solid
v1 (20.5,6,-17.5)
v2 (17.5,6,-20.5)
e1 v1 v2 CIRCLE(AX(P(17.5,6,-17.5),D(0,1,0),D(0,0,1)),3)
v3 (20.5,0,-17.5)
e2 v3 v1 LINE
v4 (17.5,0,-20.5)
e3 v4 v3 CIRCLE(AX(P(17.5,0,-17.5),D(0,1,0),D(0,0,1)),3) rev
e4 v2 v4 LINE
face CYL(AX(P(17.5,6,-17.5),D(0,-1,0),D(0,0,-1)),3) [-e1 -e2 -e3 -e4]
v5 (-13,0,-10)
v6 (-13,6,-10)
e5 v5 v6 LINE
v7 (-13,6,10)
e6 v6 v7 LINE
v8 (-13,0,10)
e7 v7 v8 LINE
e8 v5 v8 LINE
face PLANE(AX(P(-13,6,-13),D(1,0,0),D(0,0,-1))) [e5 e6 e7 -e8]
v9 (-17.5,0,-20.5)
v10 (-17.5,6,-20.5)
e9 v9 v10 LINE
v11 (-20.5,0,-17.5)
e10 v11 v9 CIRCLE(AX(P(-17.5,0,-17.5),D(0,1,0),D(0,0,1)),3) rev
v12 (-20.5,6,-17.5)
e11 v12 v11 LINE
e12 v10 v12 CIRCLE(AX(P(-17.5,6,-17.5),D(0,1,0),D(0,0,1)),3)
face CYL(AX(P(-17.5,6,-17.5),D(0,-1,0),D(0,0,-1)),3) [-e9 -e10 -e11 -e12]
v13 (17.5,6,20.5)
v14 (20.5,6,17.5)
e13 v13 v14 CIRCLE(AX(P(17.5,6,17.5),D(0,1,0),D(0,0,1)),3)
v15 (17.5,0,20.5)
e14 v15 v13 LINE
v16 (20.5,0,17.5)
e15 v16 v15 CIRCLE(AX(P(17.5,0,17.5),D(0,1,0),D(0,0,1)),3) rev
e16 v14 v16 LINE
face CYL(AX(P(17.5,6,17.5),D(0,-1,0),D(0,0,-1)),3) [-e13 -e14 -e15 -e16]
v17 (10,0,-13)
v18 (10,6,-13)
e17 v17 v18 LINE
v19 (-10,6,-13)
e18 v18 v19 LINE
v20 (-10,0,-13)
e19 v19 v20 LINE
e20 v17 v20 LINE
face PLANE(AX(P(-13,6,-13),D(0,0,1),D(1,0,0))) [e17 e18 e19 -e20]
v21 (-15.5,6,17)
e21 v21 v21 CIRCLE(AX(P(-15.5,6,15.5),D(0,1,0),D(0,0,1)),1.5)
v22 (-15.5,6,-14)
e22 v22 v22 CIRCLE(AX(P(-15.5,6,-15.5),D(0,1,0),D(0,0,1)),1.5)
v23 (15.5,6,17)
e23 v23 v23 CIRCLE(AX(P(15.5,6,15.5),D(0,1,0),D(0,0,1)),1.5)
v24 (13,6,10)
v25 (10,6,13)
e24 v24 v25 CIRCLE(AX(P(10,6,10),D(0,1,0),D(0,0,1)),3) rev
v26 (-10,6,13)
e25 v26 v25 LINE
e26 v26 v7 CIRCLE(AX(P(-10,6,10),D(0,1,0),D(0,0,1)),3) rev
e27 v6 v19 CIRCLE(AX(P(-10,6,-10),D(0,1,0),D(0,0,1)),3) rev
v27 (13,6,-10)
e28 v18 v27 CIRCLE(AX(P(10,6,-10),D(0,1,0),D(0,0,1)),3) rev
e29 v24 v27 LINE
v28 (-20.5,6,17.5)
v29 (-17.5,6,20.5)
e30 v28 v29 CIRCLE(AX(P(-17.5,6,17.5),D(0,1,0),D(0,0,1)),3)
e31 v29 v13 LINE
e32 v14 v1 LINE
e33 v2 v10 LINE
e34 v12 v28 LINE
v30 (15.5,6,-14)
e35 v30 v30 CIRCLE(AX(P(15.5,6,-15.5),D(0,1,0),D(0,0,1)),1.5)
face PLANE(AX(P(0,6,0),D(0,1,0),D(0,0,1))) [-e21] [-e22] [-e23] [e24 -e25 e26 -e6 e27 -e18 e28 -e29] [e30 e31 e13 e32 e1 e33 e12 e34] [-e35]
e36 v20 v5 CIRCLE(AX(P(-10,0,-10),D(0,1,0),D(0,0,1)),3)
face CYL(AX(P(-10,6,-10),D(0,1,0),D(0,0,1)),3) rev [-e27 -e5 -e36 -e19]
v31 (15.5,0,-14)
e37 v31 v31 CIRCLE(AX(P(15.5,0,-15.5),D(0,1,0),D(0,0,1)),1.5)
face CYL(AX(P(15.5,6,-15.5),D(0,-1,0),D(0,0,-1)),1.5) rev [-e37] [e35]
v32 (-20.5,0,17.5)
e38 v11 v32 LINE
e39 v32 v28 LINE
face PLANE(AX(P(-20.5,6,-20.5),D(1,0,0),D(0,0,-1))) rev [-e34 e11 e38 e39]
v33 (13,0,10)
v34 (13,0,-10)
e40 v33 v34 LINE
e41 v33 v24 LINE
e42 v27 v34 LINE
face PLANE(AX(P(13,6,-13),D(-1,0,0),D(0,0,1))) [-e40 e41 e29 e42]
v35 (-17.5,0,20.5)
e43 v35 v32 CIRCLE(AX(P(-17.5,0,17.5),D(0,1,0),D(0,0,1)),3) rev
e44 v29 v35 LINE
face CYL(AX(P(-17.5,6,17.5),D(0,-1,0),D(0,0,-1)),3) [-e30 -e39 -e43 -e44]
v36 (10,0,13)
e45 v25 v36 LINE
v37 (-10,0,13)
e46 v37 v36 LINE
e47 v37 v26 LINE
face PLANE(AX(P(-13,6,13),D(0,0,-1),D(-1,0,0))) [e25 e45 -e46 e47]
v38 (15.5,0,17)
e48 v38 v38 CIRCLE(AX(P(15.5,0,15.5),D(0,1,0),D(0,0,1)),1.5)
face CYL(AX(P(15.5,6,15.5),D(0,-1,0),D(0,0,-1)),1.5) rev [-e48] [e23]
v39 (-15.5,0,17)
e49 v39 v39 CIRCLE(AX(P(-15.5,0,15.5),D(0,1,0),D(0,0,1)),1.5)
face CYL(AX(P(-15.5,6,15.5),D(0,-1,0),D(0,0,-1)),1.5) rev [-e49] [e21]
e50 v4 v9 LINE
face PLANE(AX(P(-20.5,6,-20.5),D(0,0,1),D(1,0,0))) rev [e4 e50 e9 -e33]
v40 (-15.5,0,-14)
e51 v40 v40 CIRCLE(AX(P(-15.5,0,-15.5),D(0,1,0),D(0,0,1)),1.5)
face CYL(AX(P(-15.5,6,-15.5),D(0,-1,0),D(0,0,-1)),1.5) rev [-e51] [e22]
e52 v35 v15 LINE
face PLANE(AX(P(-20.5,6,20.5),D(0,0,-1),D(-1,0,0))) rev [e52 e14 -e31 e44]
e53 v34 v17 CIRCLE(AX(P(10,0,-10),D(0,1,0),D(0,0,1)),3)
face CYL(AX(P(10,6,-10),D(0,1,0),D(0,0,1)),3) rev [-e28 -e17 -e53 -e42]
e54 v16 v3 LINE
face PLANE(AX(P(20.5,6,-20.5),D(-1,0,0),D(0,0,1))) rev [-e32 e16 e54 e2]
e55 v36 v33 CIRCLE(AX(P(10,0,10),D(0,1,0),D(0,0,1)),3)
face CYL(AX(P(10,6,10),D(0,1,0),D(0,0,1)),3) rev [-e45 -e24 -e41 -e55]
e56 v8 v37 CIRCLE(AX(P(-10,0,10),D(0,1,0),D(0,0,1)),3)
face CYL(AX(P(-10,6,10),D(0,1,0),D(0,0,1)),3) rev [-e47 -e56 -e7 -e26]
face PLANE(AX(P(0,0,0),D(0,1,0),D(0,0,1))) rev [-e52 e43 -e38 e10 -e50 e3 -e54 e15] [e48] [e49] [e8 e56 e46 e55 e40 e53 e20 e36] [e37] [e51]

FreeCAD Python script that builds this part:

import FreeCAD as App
import Part
import Sketcher

V = App.Vector


def edges_at(feature, points):
    """Names of the edges that pass closest to the given points."""
    edges = feature.Shape.Edges
    near = lambda p: min(range(len(edges)), key=lambda i: edges[i].distToShape(Part.Vertex(*p))[0])
    return sorted({f"Edge{near(p) + 1}" for p in points})

doc = App.newDocument("Part")
body = doc.addObject("PartDesign::Body", "Body")

sketch1 = doc.addObject("Sketcher::SketchObject", "Sketch")
body.addObject(sketch1)
sketch1.AttachmentSupport = (doc.XZ_Plane, [""])
sketch1.MapMode = "FlatFace"
sketch1.addGeometry([
    Part.LineSegment(V(-20.5, -20.5, 0), V(-20.5, 20.5, 0)),
    Part.LineSegment(V(-20.5, 20.5, 0), V(20.5, 20.5, 0)),
    Part.LineSegment(V(20.5, 20.5, 0), V(20.5, -20.5, 0)),
    Part.LineSegment(V(20.5, -20.5, 0), V(-20.5, -20.5, 0)),
], False)
sketch1.addConstraint([
    Sketcher.Constraint("Coincident", 0, 2, 1, 1),
    Sketcher.Constraint("Coincident", 1, 2, 2, 1),
    Sketcher.Constraint("Coincident", 2, 2, 3, 1),
    Sketcher.Constraint("Coincident", 3, 2, 0, 1),
    Sketcher.Constraint("Vertical", 0),
    Sketcher.Constraint("Horizontal", 1),
    Sketcher.Constraint("Vertical", 2),
    Sketcher.Constraint("Horizontal", 3),
    Sketcher.Constraint("Symmetric", 0, 2, 2, 2, -1, 1),
    Sketcher.Constraint("Equal", 3, 0),
    Sketcher.Constraint("DistanceX", 1, 1, 1, 2, 41.0),
])
pad1 = doc.addObject("PartDesign::Pad", "Pad")
body.addObject(pad1)
pad1.Profile = sketch1
pad1.Length = 6
pad1.Reversed = True

sketch2 = doc.addObject("Sketcher::SketchObject", "Sketch001")
body.addObject(sketch2)
sketch2.AttachmentSupport = (doc.XZ_Plane, [""])
sketch2.MapMode = "FlatFace"
sketch2.addGeometry([
    Part.Circle(V(-15.5, -15.5, 0), V(0, 0, 1), 1.5),
    Part.Circle(V(15.5, -15.5, 0), V(0, 0, 1), 1.5),
    Part.Circle(V(-15.5, 15.5, 0), V(0, 0, 1), 1.5),
    Part.Circle(V(15.5, 15.5, 0), V(0, 0, 1), 1.5),
], False)
sketch2.addConstraint([
    Sketcher.Constraint("Equal", 0, 1),
    Sketcher.Constraint("Equal", 1, 2),
    Sketcher.Constraint("Equal", 2, 3),
    Sketcher.Constraint("Symmetric", 1, 3, 2, 3, -1, 1),
    Sketcher.Constraint("Symmetric", 0, 3, 3, 3, -1, 1),
    Sketcher.Constraint("Symmetric", 0, 3, 1, 3, -2),
    Sketcher.Constraint("Diameter", 0, 3.0),
    Sketcher.Constraint("DistanceX", 0, 3, 1, 3, 31.0),
    Sketcher.Constraint("DistanceY", 0, 3, 2, 3, 31.0),
])
pocket1 = doc.addObject("PartDesign::Pocket", "Pocket")
body.addObject(pocket1)
pocket1.Profile = sketch2
pocket1.Length = 6

sketch3 = doc.addObject("Sketcher::SketchObject", "Sketch002")
body.addObject(sketch3)
sketch3.AttachmentSupport = (doc.XZ_Plane, [""])
sketch3.MapMode = "FlatFace"
sketch3.addGeometry([
    Part.LineSegment(V(-13, -13, 0), V(-13, 13, 0)),
    Part.LineSegment(V(-13, 13, 0), V(13, 13, 0)),
    Part.LineSegment(V(13, 13, 0), V(13, -13, 0)),
    Part.LineSegment(V(13, -13, 0), V(-13, -13, 0)),
], False)
sketch3.addConstraint([
    Sketcher.Constraint("Coincident", 0, 2, 1, 1),
    Sketcher.Constraint("Coincident", 1, 2, 2, 1),
    Sketcher.Constraint("Coincident", 2, 2, 3, 1),
    Sketcher.Constraint("Coincident", 3, 2, 0, 1),
    Sketcher.Constraint("Vertical", 0),
    Sketcher.Constraint("Horizontal", 1),
    Sketcher.Constraint("Vertical", 2),
    Sketcher.Constraint("Horizontal", 3),
    Sketcher.Constraint("Symmetric", 0, 2, 2, 2, -1, 1),
    Sketcher.Constraint("Equal", 3, 0),
    Sketcher.Constraint("DistanceX", 1, 1, 1, 2, 26.0),
])
pocket2 = doc.addObject("PartDesign::Pocket", "Pocket001")
body.addObject(pocket2)
pocket2.Profile = sketch3
pocket2.Length = 6
doc.recompute()

fillet = doc.addObject("PartDesign::Fillet", "Fillet")
body.addObject(fillet)
fillet.Base = (pocket2, edges_at(pocket2, [
    (13, 3, 13),
    (13, 3, -13),
    (-13, 3, -13),
    (-13, 3, 13),
    (20.5, 3, 20.5),
    (-20.5, 3, 20.5),
    (-20.5, 3, -20.5),
    (20.5, 3, -20.5),
]))
fillet.Radius = 3

doc.recompute()
